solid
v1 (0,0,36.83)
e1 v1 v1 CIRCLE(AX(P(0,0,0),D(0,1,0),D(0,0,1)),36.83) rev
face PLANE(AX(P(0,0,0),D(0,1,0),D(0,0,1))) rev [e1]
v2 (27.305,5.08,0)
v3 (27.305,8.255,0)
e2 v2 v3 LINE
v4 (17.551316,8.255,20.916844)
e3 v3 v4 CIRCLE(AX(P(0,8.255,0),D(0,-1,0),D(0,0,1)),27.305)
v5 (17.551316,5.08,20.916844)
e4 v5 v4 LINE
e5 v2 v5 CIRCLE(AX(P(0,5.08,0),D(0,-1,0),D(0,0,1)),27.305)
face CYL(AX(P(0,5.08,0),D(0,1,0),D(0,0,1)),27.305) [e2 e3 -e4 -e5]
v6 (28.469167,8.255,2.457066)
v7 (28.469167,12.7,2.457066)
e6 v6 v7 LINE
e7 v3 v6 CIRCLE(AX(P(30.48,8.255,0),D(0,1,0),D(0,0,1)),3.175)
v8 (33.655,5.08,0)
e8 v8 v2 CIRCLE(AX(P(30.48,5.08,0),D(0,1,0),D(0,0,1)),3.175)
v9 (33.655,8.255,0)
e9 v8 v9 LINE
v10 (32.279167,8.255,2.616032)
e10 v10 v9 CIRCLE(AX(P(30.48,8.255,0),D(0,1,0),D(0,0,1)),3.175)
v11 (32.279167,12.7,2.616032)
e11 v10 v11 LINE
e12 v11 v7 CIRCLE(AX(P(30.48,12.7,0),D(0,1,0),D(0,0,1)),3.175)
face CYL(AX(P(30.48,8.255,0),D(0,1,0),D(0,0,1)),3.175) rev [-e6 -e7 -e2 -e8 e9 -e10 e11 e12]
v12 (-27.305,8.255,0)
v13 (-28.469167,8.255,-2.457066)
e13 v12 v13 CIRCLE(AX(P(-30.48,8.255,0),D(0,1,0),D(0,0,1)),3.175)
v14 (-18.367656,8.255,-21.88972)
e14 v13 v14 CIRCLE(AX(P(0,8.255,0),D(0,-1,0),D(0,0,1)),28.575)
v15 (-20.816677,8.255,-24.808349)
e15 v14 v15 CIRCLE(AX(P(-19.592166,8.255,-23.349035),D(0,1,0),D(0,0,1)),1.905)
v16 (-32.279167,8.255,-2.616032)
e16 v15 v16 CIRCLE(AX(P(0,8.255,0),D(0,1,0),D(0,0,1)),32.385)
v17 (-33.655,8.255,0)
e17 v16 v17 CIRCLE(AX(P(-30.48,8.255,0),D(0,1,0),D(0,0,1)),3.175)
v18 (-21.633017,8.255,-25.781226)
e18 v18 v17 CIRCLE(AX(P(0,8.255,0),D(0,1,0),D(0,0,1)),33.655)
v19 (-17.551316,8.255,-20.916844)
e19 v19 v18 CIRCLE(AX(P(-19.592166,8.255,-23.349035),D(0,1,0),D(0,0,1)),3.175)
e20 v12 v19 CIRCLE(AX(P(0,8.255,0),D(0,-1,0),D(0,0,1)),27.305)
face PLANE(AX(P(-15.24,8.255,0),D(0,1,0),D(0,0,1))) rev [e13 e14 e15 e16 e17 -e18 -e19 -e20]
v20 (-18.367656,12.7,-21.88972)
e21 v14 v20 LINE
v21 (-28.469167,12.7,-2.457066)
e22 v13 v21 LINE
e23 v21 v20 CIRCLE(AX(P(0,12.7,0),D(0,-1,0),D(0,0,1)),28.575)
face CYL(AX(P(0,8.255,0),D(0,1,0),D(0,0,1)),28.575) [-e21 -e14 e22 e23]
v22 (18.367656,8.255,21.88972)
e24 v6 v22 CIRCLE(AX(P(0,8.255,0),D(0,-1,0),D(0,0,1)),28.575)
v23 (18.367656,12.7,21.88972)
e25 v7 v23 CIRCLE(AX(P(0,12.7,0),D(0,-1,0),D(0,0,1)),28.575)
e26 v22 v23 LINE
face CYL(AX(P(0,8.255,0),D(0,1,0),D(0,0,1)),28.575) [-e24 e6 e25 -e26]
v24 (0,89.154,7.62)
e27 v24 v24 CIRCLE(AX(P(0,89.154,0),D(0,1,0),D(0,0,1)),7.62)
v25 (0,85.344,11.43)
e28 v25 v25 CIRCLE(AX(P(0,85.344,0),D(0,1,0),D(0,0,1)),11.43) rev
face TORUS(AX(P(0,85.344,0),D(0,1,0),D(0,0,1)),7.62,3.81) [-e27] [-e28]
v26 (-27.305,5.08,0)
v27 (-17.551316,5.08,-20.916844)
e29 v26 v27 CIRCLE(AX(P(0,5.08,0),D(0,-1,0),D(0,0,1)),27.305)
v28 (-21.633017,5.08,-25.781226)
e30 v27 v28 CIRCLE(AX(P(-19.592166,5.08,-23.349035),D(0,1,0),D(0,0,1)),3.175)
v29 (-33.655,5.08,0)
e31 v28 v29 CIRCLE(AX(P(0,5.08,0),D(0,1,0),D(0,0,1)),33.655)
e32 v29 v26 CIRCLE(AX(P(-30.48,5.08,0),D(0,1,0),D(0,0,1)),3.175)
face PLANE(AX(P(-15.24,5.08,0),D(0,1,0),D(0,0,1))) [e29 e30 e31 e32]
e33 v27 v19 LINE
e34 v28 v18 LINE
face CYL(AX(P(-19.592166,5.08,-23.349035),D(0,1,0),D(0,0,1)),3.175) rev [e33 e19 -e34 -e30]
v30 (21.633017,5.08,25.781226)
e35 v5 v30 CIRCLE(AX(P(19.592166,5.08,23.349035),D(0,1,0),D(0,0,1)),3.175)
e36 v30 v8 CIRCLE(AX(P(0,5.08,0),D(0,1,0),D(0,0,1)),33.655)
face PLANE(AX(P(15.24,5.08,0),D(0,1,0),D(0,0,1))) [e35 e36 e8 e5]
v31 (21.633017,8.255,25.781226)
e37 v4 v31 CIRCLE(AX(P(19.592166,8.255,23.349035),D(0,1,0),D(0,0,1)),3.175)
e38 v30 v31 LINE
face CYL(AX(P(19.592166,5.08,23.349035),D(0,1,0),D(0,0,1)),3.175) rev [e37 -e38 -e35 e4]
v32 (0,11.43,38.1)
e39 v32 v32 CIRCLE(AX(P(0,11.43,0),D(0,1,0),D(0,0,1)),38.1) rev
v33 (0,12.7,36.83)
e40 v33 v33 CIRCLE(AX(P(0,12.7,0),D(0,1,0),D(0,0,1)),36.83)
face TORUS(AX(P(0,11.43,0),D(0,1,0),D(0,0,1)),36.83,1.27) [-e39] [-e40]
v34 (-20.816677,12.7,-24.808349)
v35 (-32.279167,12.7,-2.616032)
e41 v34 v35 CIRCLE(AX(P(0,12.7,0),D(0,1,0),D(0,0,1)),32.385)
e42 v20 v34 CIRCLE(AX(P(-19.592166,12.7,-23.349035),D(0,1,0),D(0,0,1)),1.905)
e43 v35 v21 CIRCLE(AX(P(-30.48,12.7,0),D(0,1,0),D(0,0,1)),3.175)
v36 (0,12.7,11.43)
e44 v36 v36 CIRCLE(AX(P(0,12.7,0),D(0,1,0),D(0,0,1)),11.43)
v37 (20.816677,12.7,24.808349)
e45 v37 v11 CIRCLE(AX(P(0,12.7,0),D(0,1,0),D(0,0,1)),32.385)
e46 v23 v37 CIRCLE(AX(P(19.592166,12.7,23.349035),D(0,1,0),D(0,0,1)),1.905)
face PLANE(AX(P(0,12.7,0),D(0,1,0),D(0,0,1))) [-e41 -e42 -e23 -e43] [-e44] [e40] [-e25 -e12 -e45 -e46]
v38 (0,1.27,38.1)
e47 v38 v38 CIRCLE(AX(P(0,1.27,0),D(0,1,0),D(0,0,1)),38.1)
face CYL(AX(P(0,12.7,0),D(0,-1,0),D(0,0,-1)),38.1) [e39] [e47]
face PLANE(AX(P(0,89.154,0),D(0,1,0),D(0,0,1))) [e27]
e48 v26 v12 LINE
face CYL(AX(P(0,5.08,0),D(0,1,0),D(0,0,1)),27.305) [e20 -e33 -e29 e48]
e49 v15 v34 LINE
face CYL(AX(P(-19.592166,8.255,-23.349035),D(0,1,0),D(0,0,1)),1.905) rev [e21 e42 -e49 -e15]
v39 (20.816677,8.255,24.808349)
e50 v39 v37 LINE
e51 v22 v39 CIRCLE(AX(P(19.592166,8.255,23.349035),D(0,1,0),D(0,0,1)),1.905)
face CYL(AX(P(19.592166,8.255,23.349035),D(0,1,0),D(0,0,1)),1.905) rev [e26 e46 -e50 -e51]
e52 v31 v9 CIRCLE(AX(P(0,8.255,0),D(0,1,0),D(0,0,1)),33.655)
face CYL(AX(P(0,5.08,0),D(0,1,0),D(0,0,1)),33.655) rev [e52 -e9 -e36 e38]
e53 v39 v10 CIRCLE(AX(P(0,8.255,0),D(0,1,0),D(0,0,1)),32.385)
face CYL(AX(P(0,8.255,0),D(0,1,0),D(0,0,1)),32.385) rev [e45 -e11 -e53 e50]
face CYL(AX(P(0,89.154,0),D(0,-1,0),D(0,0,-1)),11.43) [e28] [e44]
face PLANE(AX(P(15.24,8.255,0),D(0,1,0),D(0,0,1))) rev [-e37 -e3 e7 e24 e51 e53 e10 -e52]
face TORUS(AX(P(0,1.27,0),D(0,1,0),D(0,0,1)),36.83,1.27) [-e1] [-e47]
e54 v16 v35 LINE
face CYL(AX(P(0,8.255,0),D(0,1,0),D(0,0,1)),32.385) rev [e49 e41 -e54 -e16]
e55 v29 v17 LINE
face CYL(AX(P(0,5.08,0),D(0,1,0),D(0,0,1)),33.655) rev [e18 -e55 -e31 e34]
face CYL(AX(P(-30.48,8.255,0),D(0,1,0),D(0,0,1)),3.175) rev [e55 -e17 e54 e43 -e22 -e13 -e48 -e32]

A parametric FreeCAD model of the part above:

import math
import FreeCAD as App
import Part
import Sketcher
Q = App.Units.Quantity


def edges_at(feature, points):
    """Names of the edges that pass closest to the given points."""
    edges = feature.Shape.Edges
    near = lambda p: min(range(len(edges)), key=lambda i: edges[i].distToShape(Part.Vertex(*p))[0])
    return sorted({f"Edge{near(p) + 1}" for p in points})

doc = App.newDocument("Part")
params = doc.addObject("Spreadsheet::Sheet", "Params")
for row, (alias, value) in enumerate([
    ("sketch1_diameter", "3 in"),
    ("pad1_length", "0.5 in"),
    ("sketch2_diameter", "0.9 in"),
    ("pad2_length", "3.01 in"),
    ("fillet_radius", "0.05 in"),
    ("fillet2_radius", "0.05 in"),
    ("fillet3_radius", "0.15 in"),
    ("sketch3_radius", "0.125 in"),
    ("sketch3_radius2", "1.125 in"),
    ("sketch3_radius3", "0.075 in"),
    ("pocket1_length", "0.175 in"),
    ("sketch4_radius", "1.325 in"),
    ("sketch4_radius2", "0.125 in"),
    ("pocket2_length", "0.125 in"),
], start=1):
    params.set(f"A{row}", alias)
    params.set(f"B{row}", "=" + value)
    params.setAlias(f"B{row}", alias)

body = doc.addObject("PartDesign::Body", "Body")

# Sketch on XZ plane
sketch1 = body.newObject("Sketcher::SketchObject", "Sketch")
sketch1.AttachmentSupport = (doc.getObject("XZ_Plane"), [""])
sketch1.MapMode = "FlatFace"
sketch1.addGeometry(Part.Circle(App.Vector(0, 0, 0), App.Vector(0, 0, 1), 38), False)
sketch1.addConstraint(Sketcher.Constraint("Coincident", 0, 3, -1, 1))
sketch1.addConstraint(Sketcher.Constraint("Diameter", 0, Q("3 in")))
sketch1.setExpression("Constraints[1]", "Params.sketch1_diameter")
pad1 = body.newObject("PartDesign::Pad", "Pad")
pad1.Profile = sketch1
pad1.setExpression("Length", "Params.pad1_length")
pad1.Reversed = True

# Sketch on XZ plane
sketch2 = body.newObject("Sketcher::SketchObject", "Sketch001")
sketch2.AttachmentSupport = (doc.getObject("XZ_Plane"), [""])
sketch2.MapMode = "FlatFace"
sketch2.AttachmentOffset = App.Placement(App.Vector(0, 0, -0.5 * 25.4), App.Rotation())
sketch2.addGeometry(Part.Circle(App.Vector(0, 0, 0), App.Vector(0, 0, 1), 11), False)
sketch2.addConstraint(Sketcher.Constraint("Coincident", 0, 3, -1, 1))
sketch2.addConstraint(Sketcher.Constraint("Diameter", 0, Q("0.9 in")))
sketch2.setExpression("Constraints[1]", "Params.sketch2_diameter")
pad2 = body.newObject("PartDesign::Pad", "Pad001")
pad2.Profile = sketch2
pad2.setExpression("Length", "Params.pad2_length")
pad2.Reversed = True
doc.recompute()

fillet = body.newObject("PartDesign::Fillet", "Fillet")
fillet.Base = (pad2, edges_at(pad2, [(0, 12.7, -38.1)]))
fillet.setExpression("Radius", "Params.fillet_radius")
doc.recompute()

fillet2 = body.newObject("PartDesign::Fillet", "Fillet001")
fillet2.Base = (fillet, edges_at(fillet, [(0, 0, -38.1)]))
fillet2.setExpression("Radius", "Params.fillet2_radius")
doc.recompute()

fillet3 = body.newObject("PartDesign::Fillet", "Fillet002")
fillet3.Base = (fillet2, edges_at(fillet2, [(0, 89.154, -11.43)]))
fillet3.setExpression("Radius", "Params.fillet3_radius")

# Sketch on XZ plane
sketch3 = body.newObject("Sketcher::SketchObject", "Sketch002")
sketch3.AttachmentSupport = (doc.getObject("XZ_Plane"), [""])
sketch3.MapMode = "FlatFace"
sketch3.AttachmentOffset = App.Placement(App.Vector(0, 0, -0.5 * 25.4), App.Rotation())
sketch3.addGeometry(Part.ArcOfCircle(Part.Circle(App.Vector(-30.5, 0, 0), App.Vector(0, 0, 1), 3.2), math.radians(-51), math.radians(235)), False)
sketch3.addGeometry(Part.ArcOfCircle(Part.Circle(App.Vector(0, 0, 0), App.Vector(0, 0, 1), 28.6), math.radians(-175), math.radians(-130)), False)
sketch3.addGeometry(Part.ArcOfCircle(Part.Circle(App.Vector(-19.6, -23.3, 0), App.Vector(0, 0, 1), 1.9), math.radians(-130), math.radians(50)), False)
sketch3.addGeometry(Part.ArcOfCircle(Part.Circle(App.Vector(0, 0, 0), App.Vector(0, 0, 1), 32.4), math.radians(-175), math.radians(-130)), False)
sketch3.addGeometry(Part.ArcOfCircle(Part.Circle(App.Vector(30.5, 0, 0), App.Vector(0, 0, 1), 3.2), math.radians(129), math.radians(415)), False)
sketch3.addGeometry(Part.ArcOfCircle(Part.Circle(App.Vector(0, 0, 0), App.Vector(0, 0, 1), 28.6), math.radians(5), math.radians(50)), False)
sketch3.addGeometry(Part.ArcOfCircle(Part.Circle(App.Vector(19.6, 23.3, 0), App.Vector(0, 0, 1), 1.9), math.radians(50), math.radians(230)), False)
sketch3.addGeometry(Part.ArcOfCircle(Part.Circle(App.Vector(0, 0, 0), App.Vector(0, 0, 1), 32.4), math.radians(5), math.radians(50)), False)
sketch3.addConstraint(Sketcher.Constraint("Coincident", 0, 1, 1, 1))
sketch3.addConstraint(Sketcher.Constraint("Tangent", 1, 2, 2, 2))
sketch3.addConstraint(Sketcher.Constraint("Tangent", 2, 1, 3, 2))
sketch3.addConstraint(Sketcher.Constraint("Coincident", 3, 1, 0, 2))
sketch3.addConstraint(Sketcher.Constraint("Coincident", 4, 1, 5, 1))
sketch3.addConstraint(Sketcher.Constraint("Tangent", 5, 2, 6, 2))
sketch3.addConstraint(Sketcher.Constraint("Tangent", 6, 1, 7, 2))
sketch3.addConstraint(Sketcher.Constraint("Coincident", 7, 1, 4, 2))
sketch3.addConstraint(Sketcher.Constraint("Coincident", 1, 3, -1, 1))
sketch3.addConstraint(Sketcher.Constraint("Coincident", 3, 3, -1, 1))
sketch3.addConstraint(Sketcher.Constraint("Coincident", 5, 3, -1, 1))
sketch3.addConstraint(Sketcher.Constraint("Coincident", 7, 3, -1, 1))
sketch3.addConstraint(Sketcher.Constraint("Equal", 0, 4))
sketch3.addConstraint(Sketcher.Constraint("Equal", 1, 5))
sketch3.addConstraint(Sketcher.Constraint("Equal", 2, 6))
sketch3.addConstraint(Sketcher.Constraint("Symmetric", 0, 3, 4, 3, -1, 1))
sketch3.addConstraint(Sketcher.Constraint("PointOnObject", 0, 3, -1))
sketch3.addConstraint(Sketcher.Constraint("Radius", 0, Q("0.125 in")))
sketch3.addConstraint(Sketcher.Constraint("Radius", 1, Q("1.125 in")))
sketch3.addConstraint(Sketcher.Constraint("Radius", 2, Q("0.075 in")))
sketch3.addConstraint(Sketcher.Constraint("DistanceX", 0, 3, -1, 1, Q("1.2 in")))
sketch3.addConstraint(Sketcher.Constraint("DistanceY", 1, 2, -1, 1, Q("0.8618 in")))
sketch3.addConstraint(Sketcher.Constraint("DistanceY", -1, 1, 5, 2, Q("0.8618 in")))
sketch3.setExpression("Constraints[17]", "Params.sketch3_radius")
sketch3.setExpression("Constraints[18]", "Params.sketch3_radius2")
sketch3.setExpression("Constraints[19]", "Params.sketch3_radius3")
pocket1 = body.newObject("PartDesign::Pocket", "Pocket")
pocket1.Profile = sketch3
pocket1.setExpression("Length", "Params.pocket1_length")
pocket1.Reversed = True

# Sketch on XZ plane
sketch4 = body.newObject("Sketcher::SketchObject", "Sketch003")
sketch4.AttachmentSupport = (doc.getObject("XZ_Plane"), [""])
sketch4.MapMode = "FlatFace"
sketch4.AttachmentOffset = App.Placement(App.Vector(0, 0, -0.325 * 25.4), App.Rotation())
sketch4.addGeometry(Part.ArcOfCircle(Part.Circle(App.Vector(0, 0, 0), App.Vector(0, 0, 1), 33.7), math.radians(180), math.radians(230)), False)
sketch4.addGeometry(Part.ArcOfCircle(Part.Circle(App.Vector(-30.5, 0, 0), App.Vector(0, 0, 1), 3.2), math.radians(0), math.radians(180)), False)
sketch4.addGeometry(Part.ArcOfCircle(Part.Circle(App.Vector(0, 0, 0), App.Vector(0, 0, 1), 27.3), math.radians(180), math.radians(230)), False)
sketch4.addGeometry(Part.ArcOfCircle(Part.Circle(App.Vector(-19.6, -23.3, 0), App.Vector(0, 0, 1), 3.2), math.radians(-130), math.radians(50)), False)
sketch4.addGeometry(Part.ArcOfCircle(Part.Circle(App.Vector(30.5, 0, 0), App.Vector(0, 0, 1), 3.2), math.radians(180), math.radians(360)), False)
sketch4.addGeometry(Part.ArcOfCircle(Part.Circle(App.Vector(0, 0, 0), App.Vector(0, 0, 1), 27.3), math.radians(0), math.radians(50)), False)
sketch4.addGeometry(Part.ArcOfCircle(Part.Circle(App.Vector(19.6, 23.3, 0), App.Vector(0, 0, 1), 3.2), math.radians(50), math.radians(230)), False)
sketch4.addGeometry(Part.ArcOfCircle(Part.Circle(App.Vector(0, 0, 0), App.Vector(0, 0, 1), 33.7), math.radians(0), math.radians(50)), False)
sketch4.addConstraint(Sketcher.Constraint("Tangent", 0, 1, 1, 2))
sketch4.addConstraint(Sketcher.Constraint("Tangent", 1, 1, 2, 1))
sketch4.addConstraint(Sketcher.Constraint("Tangent", 2, 2, 3, 2))
sketch4.addConstraint(Sketcher.Constraint("Tangent", 3, 1, 0, 2))
sketch4.addConstraint(Sketcher.Constraint("Tangent", 4, 1, 5, 1))
sketch4.addConstraint(Sketcher.Constraint("Tangent", 5, 2, 6, 2))
sketch4.addConstraint(Sketcher.Constraint("Tangent", 6, 1, 7, 2))
sketch4.addConstraint(Sketcher.Constraint("Tangent", 7, 1, 4, 2))
sketch4.addConstraint(Sketcher.Constraint("Coincident", 0, 3, -1, 1))
sketch4.addConstraint(Sketcher.Constraint("Coincident", 2, 3, -1, 1))
sketch4.addConstraint(Sketcher.Constraint("Coincident", 5, 3, -1, 1))
sketch4.addConstraint(Sketcher.Constraint("Coincident", 7, 3, -1, 1))
sketch4.addConstraint(Sketcher.Constraint("Equal", 3, 4))
sketch4.addConstraint(Sketcher.Constraint("Equal", 2, 5))
sketch4.addConstraint(Sketcher.Constraint("PointOnObject", 1, 3, -1))
sketch4.addConstraint(Sketcher.Constraint("PointOnObject", 4, 3, -1))
sketch4.addConstraint(Sketcher.Constraint("Radius", 0, Q("1.325 in")))
sketch4.addConstraint(Sketcher.Constraint("Radius", 1, Q("0.125 in")))
sketch4.addConstraint(Sketcher.Constraint("DistanceX", 3, 1, 2, 2, 4.081701))
sketch4.addConstraint(Sketcher.Constraint("DistanceX", 5, 2, 6, 1, 4.081701))
sketch4.setExpression("Constraints[16]", "Params.sketch4_radius")
sketch4.setExpression("Constraints[17]", "Params.sketch4_radius2")
pocket2 = body.newObject("PartDesign::Pocket", "Pocket001")
pocket2.Profile = sketch4
pocket2.setExpression("Length", "Params.pocket2_length")
pocket2.Reversed = True

doc.recompute()
